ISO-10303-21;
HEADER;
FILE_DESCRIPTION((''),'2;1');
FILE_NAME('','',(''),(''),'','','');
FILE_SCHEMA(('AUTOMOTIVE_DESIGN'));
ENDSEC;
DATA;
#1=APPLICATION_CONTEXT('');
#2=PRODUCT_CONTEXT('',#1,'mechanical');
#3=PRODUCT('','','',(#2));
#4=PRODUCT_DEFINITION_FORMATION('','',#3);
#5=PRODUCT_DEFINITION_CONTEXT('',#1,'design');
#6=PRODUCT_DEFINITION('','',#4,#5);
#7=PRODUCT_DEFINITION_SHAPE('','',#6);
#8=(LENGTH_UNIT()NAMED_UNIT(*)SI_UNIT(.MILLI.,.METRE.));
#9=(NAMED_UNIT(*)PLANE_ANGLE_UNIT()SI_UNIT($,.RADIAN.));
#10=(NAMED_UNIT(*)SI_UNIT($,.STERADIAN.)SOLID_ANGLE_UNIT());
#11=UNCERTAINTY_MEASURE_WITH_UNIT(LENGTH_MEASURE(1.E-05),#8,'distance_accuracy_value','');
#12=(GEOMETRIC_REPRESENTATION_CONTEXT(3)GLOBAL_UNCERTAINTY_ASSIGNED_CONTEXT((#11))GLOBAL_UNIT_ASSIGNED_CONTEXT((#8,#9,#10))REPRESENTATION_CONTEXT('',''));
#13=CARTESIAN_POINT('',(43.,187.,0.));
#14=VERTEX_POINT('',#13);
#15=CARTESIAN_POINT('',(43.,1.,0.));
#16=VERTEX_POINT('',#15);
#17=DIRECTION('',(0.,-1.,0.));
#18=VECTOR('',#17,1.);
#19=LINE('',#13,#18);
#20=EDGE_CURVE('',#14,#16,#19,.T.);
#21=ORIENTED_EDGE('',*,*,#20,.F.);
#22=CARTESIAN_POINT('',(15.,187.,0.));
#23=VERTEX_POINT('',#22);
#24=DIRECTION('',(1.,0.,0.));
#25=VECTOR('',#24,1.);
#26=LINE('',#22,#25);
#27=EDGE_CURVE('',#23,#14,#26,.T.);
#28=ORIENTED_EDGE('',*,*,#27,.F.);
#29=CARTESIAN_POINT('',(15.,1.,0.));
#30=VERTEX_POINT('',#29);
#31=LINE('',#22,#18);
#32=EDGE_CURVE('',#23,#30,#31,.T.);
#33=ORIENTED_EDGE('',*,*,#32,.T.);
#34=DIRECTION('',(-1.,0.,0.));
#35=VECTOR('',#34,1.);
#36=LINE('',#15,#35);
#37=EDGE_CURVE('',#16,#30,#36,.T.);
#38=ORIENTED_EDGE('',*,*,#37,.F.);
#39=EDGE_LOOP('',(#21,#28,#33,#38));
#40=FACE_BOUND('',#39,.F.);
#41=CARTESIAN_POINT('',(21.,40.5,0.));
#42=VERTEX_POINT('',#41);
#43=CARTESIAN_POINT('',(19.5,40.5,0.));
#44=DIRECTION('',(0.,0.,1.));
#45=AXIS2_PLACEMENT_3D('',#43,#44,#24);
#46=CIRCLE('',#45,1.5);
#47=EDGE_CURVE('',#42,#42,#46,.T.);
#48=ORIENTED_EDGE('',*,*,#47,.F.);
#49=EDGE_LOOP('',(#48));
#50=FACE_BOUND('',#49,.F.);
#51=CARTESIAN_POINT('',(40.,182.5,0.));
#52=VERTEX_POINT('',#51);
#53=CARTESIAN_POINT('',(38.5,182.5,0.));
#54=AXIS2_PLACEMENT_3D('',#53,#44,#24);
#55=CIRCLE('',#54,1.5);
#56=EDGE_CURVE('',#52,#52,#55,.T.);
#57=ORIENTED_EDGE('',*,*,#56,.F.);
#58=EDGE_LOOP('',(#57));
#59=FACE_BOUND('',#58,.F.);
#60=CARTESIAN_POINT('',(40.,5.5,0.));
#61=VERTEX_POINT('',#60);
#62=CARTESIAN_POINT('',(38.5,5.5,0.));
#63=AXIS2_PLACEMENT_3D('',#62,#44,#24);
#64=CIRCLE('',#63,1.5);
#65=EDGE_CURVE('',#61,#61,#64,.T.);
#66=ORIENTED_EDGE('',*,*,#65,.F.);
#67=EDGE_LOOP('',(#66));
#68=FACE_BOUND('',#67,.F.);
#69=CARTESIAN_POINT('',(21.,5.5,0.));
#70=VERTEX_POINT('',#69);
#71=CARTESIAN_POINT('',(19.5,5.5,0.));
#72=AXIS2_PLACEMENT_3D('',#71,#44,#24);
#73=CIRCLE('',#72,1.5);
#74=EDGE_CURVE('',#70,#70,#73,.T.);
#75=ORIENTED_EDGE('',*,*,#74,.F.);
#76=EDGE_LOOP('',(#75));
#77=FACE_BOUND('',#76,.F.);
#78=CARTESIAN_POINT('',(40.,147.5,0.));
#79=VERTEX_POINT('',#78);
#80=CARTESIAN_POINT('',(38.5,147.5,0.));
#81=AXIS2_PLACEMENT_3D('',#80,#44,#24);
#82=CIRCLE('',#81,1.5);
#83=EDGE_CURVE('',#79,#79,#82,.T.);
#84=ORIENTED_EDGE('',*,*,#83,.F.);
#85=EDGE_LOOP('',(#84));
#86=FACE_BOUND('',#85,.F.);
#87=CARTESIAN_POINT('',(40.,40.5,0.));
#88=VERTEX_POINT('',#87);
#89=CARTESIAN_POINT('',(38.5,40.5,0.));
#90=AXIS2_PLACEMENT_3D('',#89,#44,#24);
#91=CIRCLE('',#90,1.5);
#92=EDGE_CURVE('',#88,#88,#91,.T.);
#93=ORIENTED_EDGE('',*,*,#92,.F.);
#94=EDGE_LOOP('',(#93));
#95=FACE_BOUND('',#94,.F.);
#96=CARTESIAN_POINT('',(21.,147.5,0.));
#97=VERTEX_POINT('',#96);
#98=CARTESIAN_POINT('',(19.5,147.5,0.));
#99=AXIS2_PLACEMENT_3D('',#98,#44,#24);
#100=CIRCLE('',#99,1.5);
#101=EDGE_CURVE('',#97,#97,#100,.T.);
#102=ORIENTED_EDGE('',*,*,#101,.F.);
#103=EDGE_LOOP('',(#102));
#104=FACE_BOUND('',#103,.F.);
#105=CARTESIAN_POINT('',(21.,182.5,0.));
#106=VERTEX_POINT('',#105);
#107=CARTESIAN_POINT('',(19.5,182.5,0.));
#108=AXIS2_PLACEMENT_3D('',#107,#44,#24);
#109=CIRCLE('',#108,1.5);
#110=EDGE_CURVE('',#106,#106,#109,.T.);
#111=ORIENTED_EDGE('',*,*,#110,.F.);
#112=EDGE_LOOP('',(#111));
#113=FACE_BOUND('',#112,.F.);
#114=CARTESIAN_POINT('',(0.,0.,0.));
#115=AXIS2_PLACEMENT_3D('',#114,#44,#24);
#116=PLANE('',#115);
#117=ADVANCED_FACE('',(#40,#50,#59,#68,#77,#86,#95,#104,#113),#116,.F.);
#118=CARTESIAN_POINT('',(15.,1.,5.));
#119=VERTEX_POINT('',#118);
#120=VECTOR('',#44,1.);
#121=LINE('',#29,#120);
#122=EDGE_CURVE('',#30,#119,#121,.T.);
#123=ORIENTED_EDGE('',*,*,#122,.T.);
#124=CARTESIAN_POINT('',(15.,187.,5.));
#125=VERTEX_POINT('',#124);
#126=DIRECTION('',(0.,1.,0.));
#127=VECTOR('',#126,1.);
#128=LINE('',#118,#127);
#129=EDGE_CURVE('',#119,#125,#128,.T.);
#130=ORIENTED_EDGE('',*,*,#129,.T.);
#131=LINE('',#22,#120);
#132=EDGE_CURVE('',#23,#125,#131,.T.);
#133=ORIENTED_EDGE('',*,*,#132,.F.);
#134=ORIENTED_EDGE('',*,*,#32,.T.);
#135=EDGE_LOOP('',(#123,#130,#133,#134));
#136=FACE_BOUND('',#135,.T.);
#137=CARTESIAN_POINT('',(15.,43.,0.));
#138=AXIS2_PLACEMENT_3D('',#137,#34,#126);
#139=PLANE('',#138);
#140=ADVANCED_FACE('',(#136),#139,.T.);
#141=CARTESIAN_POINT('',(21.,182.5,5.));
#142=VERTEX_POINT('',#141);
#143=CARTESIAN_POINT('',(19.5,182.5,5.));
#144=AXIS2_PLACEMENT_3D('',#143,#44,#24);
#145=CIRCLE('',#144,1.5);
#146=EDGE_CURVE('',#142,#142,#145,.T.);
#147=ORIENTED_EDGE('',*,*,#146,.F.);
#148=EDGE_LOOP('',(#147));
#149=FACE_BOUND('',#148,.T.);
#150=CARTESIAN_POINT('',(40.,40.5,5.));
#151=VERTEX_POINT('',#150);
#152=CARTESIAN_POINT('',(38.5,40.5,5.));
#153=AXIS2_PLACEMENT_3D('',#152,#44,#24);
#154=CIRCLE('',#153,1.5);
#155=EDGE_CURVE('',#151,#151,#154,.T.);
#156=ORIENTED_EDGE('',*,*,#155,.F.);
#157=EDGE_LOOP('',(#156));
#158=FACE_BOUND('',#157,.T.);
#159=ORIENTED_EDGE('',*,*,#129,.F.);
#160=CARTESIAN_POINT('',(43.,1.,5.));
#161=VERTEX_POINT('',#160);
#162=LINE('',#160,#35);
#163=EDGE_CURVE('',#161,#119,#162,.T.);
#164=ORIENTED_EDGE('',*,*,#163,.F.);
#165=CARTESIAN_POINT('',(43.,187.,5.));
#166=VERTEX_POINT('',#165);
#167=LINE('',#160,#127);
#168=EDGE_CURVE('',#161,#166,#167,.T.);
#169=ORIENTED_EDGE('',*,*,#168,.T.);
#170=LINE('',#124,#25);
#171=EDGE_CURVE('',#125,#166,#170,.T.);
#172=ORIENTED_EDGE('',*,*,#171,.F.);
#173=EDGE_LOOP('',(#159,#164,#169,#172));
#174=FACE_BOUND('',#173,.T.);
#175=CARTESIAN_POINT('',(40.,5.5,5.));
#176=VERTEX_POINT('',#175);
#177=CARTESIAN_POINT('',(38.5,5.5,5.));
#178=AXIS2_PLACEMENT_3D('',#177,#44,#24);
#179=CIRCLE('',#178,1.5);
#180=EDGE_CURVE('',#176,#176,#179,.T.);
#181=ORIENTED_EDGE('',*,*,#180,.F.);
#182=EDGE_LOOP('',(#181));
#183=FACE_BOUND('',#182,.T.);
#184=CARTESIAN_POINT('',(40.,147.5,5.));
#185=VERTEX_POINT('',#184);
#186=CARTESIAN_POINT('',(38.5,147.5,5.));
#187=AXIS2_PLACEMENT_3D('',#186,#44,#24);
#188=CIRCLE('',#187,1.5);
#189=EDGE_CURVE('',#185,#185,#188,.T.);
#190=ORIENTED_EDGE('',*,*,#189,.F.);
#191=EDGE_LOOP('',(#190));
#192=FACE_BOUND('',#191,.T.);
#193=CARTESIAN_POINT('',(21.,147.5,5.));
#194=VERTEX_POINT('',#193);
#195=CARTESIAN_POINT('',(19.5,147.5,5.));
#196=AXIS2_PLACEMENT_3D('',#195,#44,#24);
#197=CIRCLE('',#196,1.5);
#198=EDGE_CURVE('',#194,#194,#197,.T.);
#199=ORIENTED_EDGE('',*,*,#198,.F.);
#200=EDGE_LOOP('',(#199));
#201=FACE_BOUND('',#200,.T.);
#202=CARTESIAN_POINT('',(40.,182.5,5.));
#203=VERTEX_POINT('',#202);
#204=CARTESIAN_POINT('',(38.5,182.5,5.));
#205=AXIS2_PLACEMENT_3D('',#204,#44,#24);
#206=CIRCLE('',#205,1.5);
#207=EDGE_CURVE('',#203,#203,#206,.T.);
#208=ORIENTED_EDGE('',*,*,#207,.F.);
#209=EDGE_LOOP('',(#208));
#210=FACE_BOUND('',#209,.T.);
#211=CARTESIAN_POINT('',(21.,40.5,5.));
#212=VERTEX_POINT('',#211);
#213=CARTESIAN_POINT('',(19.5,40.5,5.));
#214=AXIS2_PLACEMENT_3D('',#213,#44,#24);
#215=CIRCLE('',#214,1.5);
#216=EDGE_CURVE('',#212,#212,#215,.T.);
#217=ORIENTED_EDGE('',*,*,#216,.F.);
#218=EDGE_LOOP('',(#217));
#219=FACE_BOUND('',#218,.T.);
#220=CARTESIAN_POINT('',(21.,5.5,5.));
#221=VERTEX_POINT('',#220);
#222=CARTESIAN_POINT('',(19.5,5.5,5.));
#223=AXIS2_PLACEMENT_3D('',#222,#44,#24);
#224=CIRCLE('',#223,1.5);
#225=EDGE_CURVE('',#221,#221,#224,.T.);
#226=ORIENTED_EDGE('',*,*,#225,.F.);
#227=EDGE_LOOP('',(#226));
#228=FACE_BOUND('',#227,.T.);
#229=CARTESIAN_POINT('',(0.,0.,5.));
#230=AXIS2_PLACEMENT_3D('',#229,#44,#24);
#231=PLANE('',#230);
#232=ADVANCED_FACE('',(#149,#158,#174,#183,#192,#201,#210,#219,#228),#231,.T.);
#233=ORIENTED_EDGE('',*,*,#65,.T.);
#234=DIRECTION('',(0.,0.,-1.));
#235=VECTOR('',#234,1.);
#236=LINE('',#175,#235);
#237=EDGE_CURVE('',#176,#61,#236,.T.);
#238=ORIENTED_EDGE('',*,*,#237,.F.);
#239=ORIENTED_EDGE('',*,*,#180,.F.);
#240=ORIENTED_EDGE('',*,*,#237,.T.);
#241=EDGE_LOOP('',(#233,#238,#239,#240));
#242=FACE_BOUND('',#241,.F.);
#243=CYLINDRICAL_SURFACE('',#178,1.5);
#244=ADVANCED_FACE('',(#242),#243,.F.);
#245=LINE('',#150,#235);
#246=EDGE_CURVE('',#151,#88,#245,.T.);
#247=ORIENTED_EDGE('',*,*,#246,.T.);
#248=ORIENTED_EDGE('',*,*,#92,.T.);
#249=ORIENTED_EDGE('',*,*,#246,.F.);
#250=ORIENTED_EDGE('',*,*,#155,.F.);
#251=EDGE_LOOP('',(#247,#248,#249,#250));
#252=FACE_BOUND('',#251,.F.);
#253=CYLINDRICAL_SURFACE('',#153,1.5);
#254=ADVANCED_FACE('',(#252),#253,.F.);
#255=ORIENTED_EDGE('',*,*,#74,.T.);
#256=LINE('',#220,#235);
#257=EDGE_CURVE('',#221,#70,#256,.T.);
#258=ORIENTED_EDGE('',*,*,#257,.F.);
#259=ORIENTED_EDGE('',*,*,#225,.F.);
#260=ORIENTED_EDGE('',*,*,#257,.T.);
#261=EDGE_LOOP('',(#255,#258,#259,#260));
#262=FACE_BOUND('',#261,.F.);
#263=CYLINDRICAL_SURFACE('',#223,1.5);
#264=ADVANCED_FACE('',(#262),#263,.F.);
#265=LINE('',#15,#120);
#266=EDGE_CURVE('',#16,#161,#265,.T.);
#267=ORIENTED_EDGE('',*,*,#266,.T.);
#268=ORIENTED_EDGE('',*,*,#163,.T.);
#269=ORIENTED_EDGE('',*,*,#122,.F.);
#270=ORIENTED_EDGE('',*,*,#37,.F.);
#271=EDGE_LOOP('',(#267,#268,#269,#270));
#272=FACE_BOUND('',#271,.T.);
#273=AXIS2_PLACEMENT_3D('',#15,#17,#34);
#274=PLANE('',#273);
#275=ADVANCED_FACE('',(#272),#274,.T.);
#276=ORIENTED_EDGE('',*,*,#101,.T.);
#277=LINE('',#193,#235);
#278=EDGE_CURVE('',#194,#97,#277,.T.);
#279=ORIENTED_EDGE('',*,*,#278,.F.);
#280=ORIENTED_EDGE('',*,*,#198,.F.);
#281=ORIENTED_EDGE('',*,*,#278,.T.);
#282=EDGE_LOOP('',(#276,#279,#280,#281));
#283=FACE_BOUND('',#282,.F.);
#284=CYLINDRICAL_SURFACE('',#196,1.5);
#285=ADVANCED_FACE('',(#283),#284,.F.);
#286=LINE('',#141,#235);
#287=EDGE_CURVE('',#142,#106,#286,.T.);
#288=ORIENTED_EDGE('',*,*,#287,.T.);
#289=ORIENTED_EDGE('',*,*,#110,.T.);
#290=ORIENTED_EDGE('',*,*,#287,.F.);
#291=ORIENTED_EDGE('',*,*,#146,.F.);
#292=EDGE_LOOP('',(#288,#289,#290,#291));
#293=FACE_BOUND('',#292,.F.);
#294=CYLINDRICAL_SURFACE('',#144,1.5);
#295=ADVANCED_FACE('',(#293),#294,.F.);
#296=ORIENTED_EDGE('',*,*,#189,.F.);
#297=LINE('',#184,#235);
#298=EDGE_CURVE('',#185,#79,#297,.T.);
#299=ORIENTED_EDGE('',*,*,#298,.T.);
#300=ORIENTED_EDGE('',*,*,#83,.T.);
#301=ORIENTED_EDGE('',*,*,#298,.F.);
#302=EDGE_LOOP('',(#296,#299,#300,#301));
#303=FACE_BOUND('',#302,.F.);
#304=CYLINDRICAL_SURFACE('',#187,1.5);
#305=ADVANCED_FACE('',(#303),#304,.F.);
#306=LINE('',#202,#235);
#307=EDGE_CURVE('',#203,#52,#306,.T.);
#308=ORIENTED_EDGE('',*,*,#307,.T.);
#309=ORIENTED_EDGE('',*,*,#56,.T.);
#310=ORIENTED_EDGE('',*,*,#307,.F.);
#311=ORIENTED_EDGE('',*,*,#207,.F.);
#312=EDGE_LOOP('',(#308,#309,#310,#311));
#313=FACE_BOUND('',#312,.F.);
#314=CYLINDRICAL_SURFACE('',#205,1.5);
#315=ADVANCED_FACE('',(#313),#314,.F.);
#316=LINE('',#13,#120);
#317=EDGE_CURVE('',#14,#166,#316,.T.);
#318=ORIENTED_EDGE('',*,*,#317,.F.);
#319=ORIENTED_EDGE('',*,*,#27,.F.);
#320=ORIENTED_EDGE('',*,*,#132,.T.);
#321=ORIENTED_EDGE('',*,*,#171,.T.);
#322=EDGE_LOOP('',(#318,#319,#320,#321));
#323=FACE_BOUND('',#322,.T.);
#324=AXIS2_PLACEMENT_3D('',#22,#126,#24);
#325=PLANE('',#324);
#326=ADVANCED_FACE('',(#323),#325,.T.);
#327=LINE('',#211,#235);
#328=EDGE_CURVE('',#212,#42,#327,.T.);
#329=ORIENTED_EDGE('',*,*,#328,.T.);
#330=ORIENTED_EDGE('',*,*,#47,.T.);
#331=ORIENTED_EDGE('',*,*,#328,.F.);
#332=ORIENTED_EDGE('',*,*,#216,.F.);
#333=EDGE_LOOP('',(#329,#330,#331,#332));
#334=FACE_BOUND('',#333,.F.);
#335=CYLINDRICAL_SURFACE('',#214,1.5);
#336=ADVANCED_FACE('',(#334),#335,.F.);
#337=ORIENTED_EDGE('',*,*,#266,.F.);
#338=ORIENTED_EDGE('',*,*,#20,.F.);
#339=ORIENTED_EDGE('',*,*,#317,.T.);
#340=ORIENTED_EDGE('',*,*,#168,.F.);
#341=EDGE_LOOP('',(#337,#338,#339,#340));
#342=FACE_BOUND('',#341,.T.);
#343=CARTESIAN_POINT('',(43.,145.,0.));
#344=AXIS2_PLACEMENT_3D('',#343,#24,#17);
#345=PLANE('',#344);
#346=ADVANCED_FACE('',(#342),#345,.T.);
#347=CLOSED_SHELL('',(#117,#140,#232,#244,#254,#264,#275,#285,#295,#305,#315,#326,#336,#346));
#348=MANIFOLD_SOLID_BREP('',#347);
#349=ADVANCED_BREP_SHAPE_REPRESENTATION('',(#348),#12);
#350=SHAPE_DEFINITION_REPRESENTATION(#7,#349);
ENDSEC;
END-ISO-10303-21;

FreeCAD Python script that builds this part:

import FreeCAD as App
import Part
import Sketcher


def add_polygon(sketch, points):
    """Adds a closed chain of lines whose ends are joined by coincident constraints."""
    first, n = sketch.GeometryCount, len(points)
    for a, b in zip(points, points[1:] + points[:1]):
        sketch.addGeometry(Part.LineSegment(App.Vector(*a, 0), App.Vector(*b, 0)), False)
    for i in range(n):
        sketch.addConstraint(Sketcher.Constraint("Coincident", first + i, 2, first + (i + 1) % n, 1))

doc = App.newDocument("Part")
body = doc.addObject("PartDesign::Body", "Body")

sketch1 = body.newObject("Sketcher::SketchObject", "Sketch")
sketch1.AttachmentSupport = (doc.getObject("XY_Plane"), [""])
sketch1.MapMode = "FlatFace"
add_polygon(sketch1, [(15, 1), (43, 1), (43, 187), (15, 187)])
sketch1.addConstraint([
    Sketcher.Constraint("Horizontal", 0),
    Sketcher.Constraint("Vertical", 1),
    Sketcher.Constraint("Horizontal", 2),
    Sketcher.Constraint("Vertical", 3),
    Sketcher.Constraint("DistanceX", 0, 1, 0, 2, 28.0),
    Sketcher.Constraint("DistanceY", 1, 1, 1, 2, 186.0),
    Sketcher.Constraint("DistanceX", -1, 1, 0, 2, 43.0),
    Sketcher.Constraint("DistanceY", -1, 1, 0, 2, 1.0),
])
pad1 = body.newObject("PartDesign::Pad", "Pad")
pad1.Profile = sketch1
pad1.Length = 5

sketch2 = body.newObject("Sketcher::SketchObject", "Sketch001")
sketch2.AttachmentSupport = (doc.getObject("XY_Plane"), [""])
sketch2.MapMode = "FlatFace"
sketch2.AttachmentOffset = App.Placement(App.Vector(0, 0, 5), App.Rotation())
sketch2.addGeometry([
    Part.Circle(App.Vector(19.5, 5.5, 0), App.Vector(0, 0, 1), 1.5),
    Part.Circle(App.Vector(38.5, 5.5, 0), App.Vector(0, 0, 1), 1.5),
    Part.Circle(App.Vector(19.5, 40.5, 0), App.Vector(0, 0, 1), 1.5),
    Part.Circle(App.Vector(38.5, 40.5, 0), App.Vector(0, 0, 1), 1.5),
    Part.Circle(App.Vector(19.5, 182.5, 0), App.Vector(0, 0, 1), 1.5),
    Part.Circle(App.Vector(19.5, 147.5, 0), App.Vector(0, 0, 1), 1.5),
    Part.Circle(App.Vector(38.5, 147.5, 0), App.Vector(0, 0, 1), 1.5),
    Part.Circle(App.Vector(38.5, 182.5, 0), App.Vector(0, 0, 1), 1.5),
], False)
sketch2.addConstraint([
    Sketcher.Constraint("Equal", 0, 1),
    Sketcher.Constraint("Equal", 1, 2),
    Sketcher.Constraint("Equal", 2, 3),
    Sketcher.Constraint("Equal", 3, 4),
    Sketcher.Constraint("Equal", 4, 5),
    Sketcher.Constraint("Equal", 5, 6),
    Sketcher.Constraint("Equal", 6, 7),
    Sketcher.Constraint("Horizontal", 0, 3, 1, 3),
    Sketcher.Constraint("Horizontal", 2, 3, 3, 3),
    Sketcher.Constraint("Horizontal", 5, 3, 6, 3),
    Sketcher.Constraint("Horizontal", 4, 3, 7, 3),
    Sketcher.Constraint("Vertical", 0, 3, 2, 3),
    Sketcher.Constraint("Vertical", 1, 3, 3, 3),
    Sketcher.Constraint("Vertical", 2, 3, 4, 3),
    Sketcher.Constraint("Vertical", 4, 3, 5, 3),
    Sketcher.Constraint("Vertical", 3, 3, 6, 3),
    Sketcher.Constraint("Vertical", 6, 3, 7, 3),
    Sketcher.Constraint("Diameter", 0, 3.0),
    Sketcher.Constraint("DistanceX", 0, 3, 1, 3, 19.0),
    Sketcher.Constraint("DistanceY", 0, 3, 2, 3, 35.0),
    Sketcher.Constraint("DistanceY", 2, 3, 4, 3, 142.0),
    Sketcher.Constraint("DistanceY", 5, 3, 4, 3, 35.0),
    Sketcher.Constraint("DistanceX", -1, 1, 0, 3, 19.5),
    Sketcher.Constraint("DistanceY", -1, 1, 0, 3, 5.5),
])
pocket1 = body.newObject("PartDesign::Pocket", "Pocket")
pocket1.Profile = sketch2
pocket1.Type = "ThroughAll"

doc.recompute()
